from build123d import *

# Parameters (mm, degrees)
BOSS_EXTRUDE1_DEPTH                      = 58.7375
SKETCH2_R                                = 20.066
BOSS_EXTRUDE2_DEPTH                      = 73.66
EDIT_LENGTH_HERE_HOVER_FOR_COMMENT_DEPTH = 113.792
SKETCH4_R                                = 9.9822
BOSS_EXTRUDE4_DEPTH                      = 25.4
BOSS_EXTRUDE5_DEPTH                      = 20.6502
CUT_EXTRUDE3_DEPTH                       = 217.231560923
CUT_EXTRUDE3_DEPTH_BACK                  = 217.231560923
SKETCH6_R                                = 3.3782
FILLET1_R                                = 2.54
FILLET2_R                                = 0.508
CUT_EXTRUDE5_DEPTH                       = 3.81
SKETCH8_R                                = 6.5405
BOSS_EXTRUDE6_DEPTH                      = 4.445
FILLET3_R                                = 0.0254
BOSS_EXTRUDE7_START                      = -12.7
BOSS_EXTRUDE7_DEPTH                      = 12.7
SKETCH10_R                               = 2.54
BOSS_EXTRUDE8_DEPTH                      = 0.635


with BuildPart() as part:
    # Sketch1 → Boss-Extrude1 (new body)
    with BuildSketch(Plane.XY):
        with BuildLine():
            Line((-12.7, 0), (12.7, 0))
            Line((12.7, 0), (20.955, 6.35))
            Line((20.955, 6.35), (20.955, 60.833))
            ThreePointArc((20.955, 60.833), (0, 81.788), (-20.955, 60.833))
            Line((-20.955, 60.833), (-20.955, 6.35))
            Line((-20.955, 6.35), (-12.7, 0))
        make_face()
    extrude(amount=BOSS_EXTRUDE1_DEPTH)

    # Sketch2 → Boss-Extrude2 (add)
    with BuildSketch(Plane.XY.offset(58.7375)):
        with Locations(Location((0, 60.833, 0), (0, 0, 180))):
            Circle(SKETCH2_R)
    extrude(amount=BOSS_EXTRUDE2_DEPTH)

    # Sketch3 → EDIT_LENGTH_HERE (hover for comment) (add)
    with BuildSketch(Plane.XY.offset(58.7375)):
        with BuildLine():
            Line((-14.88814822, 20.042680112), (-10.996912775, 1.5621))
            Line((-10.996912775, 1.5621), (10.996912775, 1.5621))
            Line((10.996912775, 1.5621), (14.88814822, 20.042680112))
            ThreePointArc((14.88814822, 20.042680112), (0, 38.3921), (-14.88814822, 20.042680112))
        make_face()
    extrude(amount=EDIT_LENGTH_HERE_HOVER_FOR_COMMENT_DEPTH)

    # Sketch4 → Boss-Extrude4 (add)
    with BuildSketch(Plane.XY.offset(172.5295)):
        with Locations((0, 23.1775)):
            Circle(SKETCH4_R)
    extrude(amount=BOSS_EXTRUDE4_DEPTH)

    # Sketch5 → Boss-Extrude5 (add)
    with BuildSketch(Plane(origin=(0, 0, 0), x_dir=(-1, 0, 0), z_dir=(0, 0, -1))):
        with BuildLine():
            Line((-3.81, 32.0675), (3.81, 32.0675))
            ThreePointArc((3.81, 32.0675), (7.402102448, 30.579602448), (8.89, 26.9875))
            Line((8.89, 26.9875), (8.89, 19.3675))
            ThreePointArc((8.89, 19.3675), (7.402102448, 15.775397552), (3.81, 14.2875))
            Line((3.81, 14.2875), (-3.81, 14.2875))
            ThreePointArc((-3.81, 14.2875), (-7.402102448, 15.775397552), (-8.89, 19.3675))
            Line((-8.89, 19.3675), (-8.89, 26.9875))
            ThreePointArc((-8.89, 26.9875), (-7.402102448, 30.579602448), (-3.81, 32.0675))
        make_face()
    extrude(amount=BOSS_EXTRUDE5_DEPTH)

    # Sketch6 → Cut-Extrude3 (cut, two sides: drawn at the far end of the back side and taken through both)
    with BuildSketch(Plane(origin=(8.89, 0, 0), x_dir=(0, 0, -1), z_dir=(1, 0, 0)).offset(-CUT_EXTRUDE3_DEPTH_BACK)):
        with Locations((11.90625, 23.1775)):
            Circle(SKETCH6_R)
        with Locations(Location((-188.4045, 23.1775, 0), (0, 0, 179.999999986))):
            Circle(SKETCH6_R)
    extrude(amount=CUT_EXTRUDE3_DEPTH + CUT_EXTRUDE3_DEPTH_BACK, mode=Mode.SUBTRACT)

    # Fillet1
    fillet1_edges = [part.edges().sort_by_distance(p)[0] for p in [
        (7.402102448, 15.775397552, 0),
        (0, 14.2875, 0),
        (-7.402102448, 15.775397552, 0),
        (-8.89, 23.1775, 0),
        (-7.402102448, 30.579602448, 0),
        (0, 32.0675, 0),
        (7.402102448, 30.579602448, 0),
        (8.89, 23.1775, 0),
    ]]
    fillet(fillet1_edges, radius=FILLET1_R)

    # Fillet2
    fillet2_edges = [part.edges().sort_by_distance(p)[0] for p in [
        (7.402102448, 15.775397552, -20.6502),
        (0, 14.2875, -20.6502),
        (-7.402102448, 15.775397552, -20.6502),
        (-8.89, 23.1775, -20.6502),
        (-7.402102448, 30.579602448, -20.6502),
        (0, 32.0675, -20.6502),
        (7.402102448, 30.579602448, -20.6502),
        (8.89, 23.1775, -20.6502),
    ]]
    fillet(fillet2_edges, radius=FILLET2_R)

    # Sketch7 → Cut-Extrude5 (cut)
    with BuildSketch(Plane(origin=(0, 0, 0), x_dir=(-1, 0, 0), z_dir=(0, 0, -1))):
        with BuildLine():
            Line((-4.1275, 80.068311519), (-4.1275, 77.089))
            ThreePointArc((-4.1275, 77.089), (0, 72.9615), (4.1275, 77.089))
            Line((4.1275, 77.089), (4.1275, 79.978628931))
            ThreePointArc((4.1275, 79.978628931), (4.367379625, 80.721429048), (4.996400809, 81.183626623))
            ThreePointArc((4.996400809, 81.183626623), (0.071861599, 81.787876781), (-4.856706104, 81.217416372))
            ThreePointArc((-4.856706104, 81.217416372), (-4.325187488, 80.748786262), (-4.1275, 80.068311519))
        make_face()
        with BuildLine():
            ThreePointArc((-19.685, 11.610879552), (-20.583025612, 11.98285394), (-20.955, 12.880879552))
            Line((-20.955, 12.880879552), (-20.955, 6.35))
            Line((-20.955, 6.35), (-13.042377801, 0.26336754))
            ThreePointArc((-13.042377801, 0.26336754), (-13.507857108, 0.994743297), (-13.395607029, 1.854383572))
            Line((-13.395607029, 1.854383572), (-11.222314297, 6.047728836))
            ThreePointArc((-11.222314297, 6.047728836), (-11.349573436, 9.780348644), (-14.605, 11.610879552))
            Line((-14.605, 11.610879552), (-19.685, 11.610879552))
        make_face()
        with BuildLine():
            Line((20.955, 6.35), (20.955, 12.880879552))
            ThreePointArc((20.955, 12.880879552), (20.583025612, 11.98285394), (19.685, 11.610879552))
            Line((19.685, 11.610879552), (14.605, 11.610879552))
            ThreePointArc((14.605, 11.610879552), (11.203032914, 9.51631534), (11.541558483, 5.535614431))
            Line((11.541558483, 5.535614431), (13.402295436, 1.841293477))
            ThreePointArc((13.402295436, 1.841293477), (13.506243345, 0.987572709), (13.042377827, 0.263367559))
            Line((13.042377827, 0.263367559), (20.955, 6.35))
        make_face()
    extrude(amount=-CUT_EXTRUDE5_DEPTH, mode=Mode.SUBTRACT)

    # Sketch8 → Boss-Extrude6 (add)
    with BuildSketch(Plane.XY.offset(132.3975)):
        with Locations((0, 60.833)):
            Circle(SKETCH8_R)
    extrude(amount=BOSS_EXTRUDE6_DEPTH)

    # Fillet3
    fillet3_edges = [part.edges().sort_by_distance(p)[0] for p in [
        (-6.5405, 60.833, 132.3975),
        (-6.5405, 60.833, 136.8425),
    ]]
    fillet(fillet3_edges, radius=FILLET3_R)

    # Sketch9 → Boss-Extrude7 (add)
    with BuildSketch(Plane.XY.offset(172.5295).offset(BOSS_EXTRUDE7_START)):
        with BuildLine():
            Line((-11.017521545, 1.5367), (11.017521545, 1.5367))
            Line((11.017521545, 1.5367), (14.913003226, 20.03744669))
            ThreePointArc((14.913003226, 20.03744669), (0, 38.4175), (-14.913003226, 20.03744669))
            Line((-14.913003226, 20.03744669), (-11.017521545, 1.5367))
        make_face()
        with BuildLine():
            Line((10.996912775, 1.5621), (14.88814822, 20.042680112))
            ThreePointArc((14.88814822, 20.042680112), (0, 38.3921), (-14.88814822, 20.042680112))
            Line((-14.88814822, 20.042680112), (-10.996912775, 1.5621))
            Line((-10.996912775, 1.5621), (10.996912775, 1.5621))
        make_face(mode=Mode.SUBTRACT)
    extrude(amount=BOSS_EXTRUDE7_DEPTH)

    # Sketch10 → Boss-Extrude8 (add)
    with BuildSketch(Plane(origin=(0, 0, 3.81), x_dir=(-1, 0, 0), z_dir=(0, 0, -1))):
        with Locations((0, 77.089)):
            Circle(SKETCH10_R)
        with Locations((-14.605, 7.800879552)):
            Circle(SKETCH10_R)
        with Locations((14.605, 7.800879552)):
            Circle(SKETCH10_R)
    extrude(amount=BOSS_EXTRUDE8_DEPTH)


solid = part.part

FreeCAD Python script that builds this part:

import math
import FreeCAD as App
import Part
import Sketcher
Q = App.Units.Quantity


def edges_at(feature, points):
    """Names of the edges that pass closest to the given points."""
    edges = feature.Shape.Edges
    near = lambda p: min(range(len(edges)), key=lambda i: edges[i].distToShape(Part.Vertex(*p))[0])
    return sorted({f"Edge{near(p) + 1}" for p in points})

doc = App.newDocument("Part")
body = doc.addObject("PartDesign::Body", "Body")

# Sketch on XY plane
sketch1 = body.newObject("Sketcher::SketchObject", "Sketch")
sketch1.AttachmentSupport = (doc.getObject("XY_Plane"), [""])
sketch1.MapMode = "FlatFace"
sketch1.addGeometry([
    Part.LineSegment(App.Vector(-13, 0, 0), App.Vector(13, 0, 0)),  # 0
    Part.LineSegment(App.Vector(13, 0, 0), App.Vector(21, 6, 0)),  # 1
    Part.LineSegment(App.Vector(21, 6, 0), App.Vector(21, 61, 0)),  # 2
    Part.ArcOfCircle(Part.Circle(App.Vector(0, 61, 0), App.Vector(0, 0, 1), 21), math.radians(0), math.radians(180)),  # 3
    Part.LineSegment(App.Vector(-21, 61, 0), App.Vector(-21, 6, 0)),  # 4
    Part.LineSegment(App.Vector(-21, 6, 0), App.Vector(-13, 0, 0)),  # 5
], False)
sketch1.addConstraint([
    Sketcher.Constraint("Coincident", 0, 2, 1, 1),
    Sketcher.Constraint("Coincident", 1, 2, 2, 1),
    Sketcher.Constraint("Tangent", 2, 2, 3, 1),
    Sketcher.Constraint("Tangent", 3, 2, 4, 1),
    Sketcher.Constraint("Coincident", 4, 2, 5, 1),
    Sketcher.Constraint("Coincident", 5, 2, 0, 1),
    Sketcher.Constraint("Horizontal", 0),
    Sketcher.Constraint("Vertical", 2),
    Sketcher.Constraint("Vertical", 4),
    Sketcher.Constraint("Symmetric", 0, 2, 5, 2, -1, 1),
    Sketcher.Constraint("Symmetric", 1, 2, 4, 2, -2),
    Sketcher.Constraint("DistanceX", 0, 1, 0, 2, Q("1 in")),
    Sketcher.Constraint("Radius", 3, Q("0.825 in")),
    Sketcher.Constraint("DistanceY", 2, 1, 2, 2, Q("2.145 in")),
    Sketcher.Constraint("DistanceY", -1, 1, 1, 2, Q("0.25 in")),
])
pad1 = body.newObject("PartDesign::Pad", "Pad")
pad1.Profile = sketch1
pad1.Length = Q("2.3125 in")

# Sketch on XY plane
sketch2 = body.newObject("Sketcher::SketchObject", "Sketch001")
sketch2.AttachmentSupport = (doc.getObject("XY_Plane"), [""])
sketch2.MapMode = "FlatFace"
sketch2.AttachmentOffset = App.Placement(App.Vector(0, 0, 2.3125 * 25.4), App.Rotation())
sketch2.addGeometry(Part.Circle(App.Vector(0, 61, 0), App.Vector(0, 0, 1), 20), False)
sketch2.addConstraint([
    Sketcher.Constraint("PointOnObject", 0, 3, -2),
    Sketcher.Constraint("Diameter", 0, Q("1.58 in")),
    Sketcher.Constraint("DistanceY", -1, 1, 0, 3, Q("2.395 in")),
])
pad2 = body.newObject("PartDesign::Pad", "Pad001")
pad2.Profile = sketch2
pad2.Length = Q("2.9 in")

# Sketch on XY plane
sketch3 = body.newObject("Sketcher::SketchObject", "Sketch002")
sketch3.AttachmentSupport = (doc.getObject("XY_Plane"), [""])
sketch3.MapMode = "FlatFace"
sketch3.AttachmentOffset = App.Placement(App.Vector(0, 0, 2.3125 * 25.4), App.Rotation())
sketch3.addGeometry([
    Part.LineSegment(App.Vector(-15, 20, 0), App.Vector(-11, 2, 0)),
    Part.LineSegment(App.Vector(-11, 2, 0), App.Vector(11, 2, 0)),
    Part.LineSegment(App.Vector(11, 2, 0), App.Vector(15, 20, 0)),
    Part.ArcOfCircle(Part.Circle(App.Vector(0, 23, 0), App.Vector(0, 0, 1), 15), math.radians(-12), math.radians(192)),
], False)
sketch3.addConstraint([
    Sketcher.Constraint("Coincident", 0, 2, 1, 1),
    Sketcher.Constraint("Coincident", 1, 2, 2, 1),
    Sketcher.Constraint("Tangent", 2, 2, 3, 1),
    Sketcher.Constraint("Tangent", 3, 2, 0, 1),
    Sketcher.Constraint("Horizontal", 1),
    Sketcher.Constraint("Symmetric", 2, 2, 3, 2, -2),
    Sketcher.Constraint("Radius", 3, Q("0.599 in")),
    Sketcher.Constraint("DistanceY", 0, 2, 3, 3, Q("0.851 in")),
    Sketcher.Constraint("DistanceY", -1, 1, 3, 3, Q("0.9125 in")),
    Sketcher.Constraint("DistanceX", 1, 1, 1, 2, Q("21.993826 mm")),
])
pad3 = body.newObject("PartDesign::Pad", "Pad002")
pad3.Profile = sketch3
pad3.Length = Q("4.48 in")

# Sketch on XY plane
sketch4 = body.newObject("Sketcher::SketchObject", "Sketch003")
sketch4.AttachmentSupport = (doc.getObject("XY_Plane"), [""])
sketch4.MapMode = "FlatFace"
sketch4.AttachmentOffset = App.Placement(App.Vector(0, 0, 6.7925 * 25.4), App.Rotation())
sketch4.addGeometry(Part.Circle(App.Vector(0, 23, 0), App.Vector(0, 0, 1), 10), False)
sketch4.addConstraint([
    Sketcher.Constraint("PointOnObject", 0, 3, -2),
    Sketcher.Constraint("Diameter", 0, Q("0.786 in")),
    Sketcher.Constraint("DistanceY", -1, 1, 0, 3, Q("0.9125 in")),
])
pad4 = body.newObject("PartDesign::Pad", "Pad003")
pad4.Profile = sketch4
pad4.Length = Q("1 in")

# Sketch on XY plane
sketch5 = body.newObject("Sketcher::SketchObject", "Sketch004")
sketch5.AttachmentSupport = (doc.getObject("XY_Plane"), [""])
sketch5.MapMode = "FlatFace"
sketch5.addGeometry([
    Part.LineSegment(App.Vector(-4, 32, 0), App.Vector(4, 32, 0)),  # 0
    Part.ArcOfCircle(Part.Circle(App.Vector(4, 27, 0), App.Vector(0, 0, 1), 5), math.radians(0), math.radians(90)),  # 1
    Part.LineSegment(App.Vector(9, 27, 0), App.Vector(9, 19, 0)),  # 2
    Part.ArcOfCircle(Part.Circle(App.Vector(4, 19, 0), App.Vector(0, 0, 1), 5), math.radians(-90), math.radians(0)),  # 3
    Part.LineSegment(App.Vector(4, 14, 0), App.Vector(-4, 14, 0)),  # 4
    Part.ArcOfCircle(Part.Circle(App.Vector(-4, 19, 0), App.Vector(0, 0, 1), 5), math.radians(-180), math.radians(-90)),  # 5
    Part.LineSegment(App.Vector(-9, 19, 0), App.Vector(-9, 27, 0)),  # 6
    Part.ArcOfCircle(Part.Circle(App.Vector(-4, 27, 0), App.Vector(0, 0, 1), 5), math.radians(90), math.radians(180)),  # 7
], False)
sketch5.addConstraint([
    Sketcher.Constraint("Tangent", 0, 2, 1, 2),
    Sketcher.Constraint("Tangent", 1, 1, 2, 1),
    Sketcher.Constraint("Tangent", 2, 2, 3, 2),
    Sketcher.Constraint("Tangent", 3, 1, 4, 1),
    Sketcher.Constraint("Tangent", 4, 2, 5, 2),
    Sketcher.Constraint("Tangent", 5, 1, 6, 1),
    Sketcher.Constraint("Tangent", 6, 2, 7, 2),
    Sketcher.Constraint("Tangent", 7, 1, 0, 1),
    Sketcher.Constraint("Horizontal", 0),
    Sketcher.Constraint("Vertical", 2),
    Sketcher.Constraint("Horizontal", 4),
    Sketcher.Constraint("Vertical", 6),
    Sketcher.Constraint("Equal", 1, 3),
    Sketcher.Constraint("Equal", 3, 5),
    Sketcher.Constraint("Equal", 5, 7),
    Sketcher.Constraint("Equal", 4, 2),
    Sketcher.Constraint("Radius", 1, Q("0.2 in")),
    Sketcher.Constraint("DistanceX", 0, 1, 0, 2, Q("0.3 in")),
    Sketcher.Constraint("DistanceX", -1, 1, 1, 3, Q("0.15 in")),
    Sketcher.Constraint("DistanceY", -1, 1, 1, 3, Q("1.0625 in")),
])
pad5 = body.newObject("PartDesign::Pad", "Pad004")
pad5.Profile = sketch5
pad5.Length = Q("0.813 in")
pad5.Reversed = True

# Sketch on YZ plane
sketch6 = body.newObject("Sketcher::SketchObject", "Sketch005")
sketch6.AttachmentSupport = (doc.getObject("YZ_Plane"), [""])
sketch6.MapMode = "FlatFace"
sketch6.AttachmentOffset = App.Placement(App.Vector(0, 0, 0.35 * 25.4), App.Rotation())
sketch6.addGeometry([
    Part.Circle(App.Vector(23.2, -11.9, 0), App.Vector(0, 0, 1), 3.4),
    Part.Circle(App.Vector(23.2, 188.4, 0), App.Vector(0, 0, 1), 3.4),
], False)
sketch6.addConstraint([
    Sketcher.Constraint("Equal", 0, 1),
    Sketcher.Constraint("Vertical", 0, 3, 1, 3),
    Sketcher.Constraint("Diameter", 0, Q("0.266 in")),
    Sketcher.Constraint("DistanceY", 0, 3, -1, 1, Q("0.46875 in")),
    Sketcher.Constraint("DistanceX", -1, 1, 0, 3, Q("0.9125 in")),
    Sketcher.Constraint("DistanceY", -1, 1, 1, 3, Q("7.4175 in")),
])
pocket1 = body.newObject("PartDesign::Pocket", "Pocket")
pocket1.Profile = sketch6
pocket1.Type = "ThroughAll"
pocket1.Midplane = True
doc.recompute()

fillet = body.newObject("PartDesign::Fillet", "Fillet")
fillet.Base = (pocket1, edges_at(pocket1, [
    (7.402, 15.775, 0),
    (0, 14.287, 0),
    (-7.402, 15.775, 0),
    (-8.89, 23.177, 0),
    (-7.402, 30.58, 0),
    (0, 32.068, 0),
    (7.402, 30.58, 0),
    (8.89, 23.177, 0),
]))
fillet.Radius = Q("0.1 in")
doc.recompute()

fillet2 = body.newObject("PartDesign::Fillet", "Fillet001")
fillet2.Base = (fillet, edges_at(fillet, [
    (7.402, 15.775, -20.65),
    (0, 14.287, -20.65),
    (-7.402, 15.775, -20.65),
    (-8.89, 23.177, -20.65),
    (-7.402, 30.58, -20.65),
    (0, 32.068, -20.65),
    (7.402, 30.58, -20.65),
    (8.89, 23.177, -20.65),
]))
fillet2.Radius = Q("0.02 in")

# Sketch on XY plane
sketch7 = body.newObject("Sketcher::SketchObject", "Sketch006")
sketch7.AttachmentSupport = (doc.getObject("XY_Plane"), [""])
sketch7.MapMode = "FlatFace"
sketch7.addGeometry([
    Part.LineSegment(App.Vector(4.1, 80.1, 0), App.Vector(4.1, 77.1, 0)),  # 0
    Part.ArcOfCircle(Part.Circle(App.Vector(0, 77.1, 0), App.Vector(0, 0, 1), 4.1), math.radians(180), math.radians(360)),  # 1
    Part.LineSegment(App.Vector(-4.1, 77.1, 0), App.Vector(-4.1, 80, 0)),  # 2
    Part.ArcOfCircle(Part.Circle(App.Vector(-5.4, 80, 0), App.Vector(0, 0, 1), 1.3), math.radians(0), math.radians(72)),  # 3
    Part.ArcOfCircle(Part.Circle(App.Vector(0, 60.8, 0), App.Vector(0, 0, 1), 21), math.radians(77), math.radians(104)),  # 4
    Part.ArcOfCircle(Part.Circle(App.Vector(5.4, 80.1, 0), App.Vector(0, 0, 1), 1.3), math.radians(115), math.radians(180)),  # 5
    Part.ArcOfCircle(Part.Circle(App.Vector(19.7, 12.9, 0), App.Vector(0, 0, 1), 1.3), math.radians(-90), math.radians(0)),  # 6
    Part.LineSegment(App.Vector(21, 12.9, 0), App.Vector(21, 6.3, 0)),  # 7
    Part.LineSegment(App.Vector(21, 6.3, 0), App.Vector(13, 0.3, 0)),  # 8
    Part.ArcOfCircle(Part.Circle(App.Vector(12.3, 1.3, 0), App.Vector(0, 0, 1), 1.3), math.radians(-52), math.radians(27)),  # 9
    Part.LineSegment(App.Vector(13.4, 1.9, 0), App.Vector(11.2, 6, 0)),  # 10
    Part.ArcOfCircle(Part.Circle(App.Vector(14.6, 7.8, 0), App.Vector(0, 0, 1), 3.8), math.radians(90), math.radians(207)),  # 11
    Part.LineSegment(App.Vector(14.6, 11.6, 0), App.Vector(19.7, 11.6, 0)),  # 12
    Part.LineSegment(App.Vector(-21, 6.3, 0), App.Vector(-21, 12.9, 0)),  # 13
    Part.ArcOfCircle(Part.Circle(App.Vector(-19.7, 12.9, 0), App.Vector(0, 0, 1), 1.3), math.radians(180), math.radians(270)),  # 14
    Part.LineSegment(App.Vector(-19.7, 11.6, 0), App.Vector(-14.6, 11.6, 0)),  # 15
    Part.ArcOfCircle(Part.Circle(App.Vector(-14.6, 7.8, 0), App.Vector(0, 0, 1), 3.8), math.radians(-36), math.radians(90)),  # 16
    Part.LineSegment(App.Vector(-11.5, 5.5, 0), App.Vector(-13.4, 1.8, 0)),  # 17
    Part.ArcOfCircle(Part.Circle(App.Vector(-12.3, 1.3, 0), App.Vector(0, 0, 1), 1.3), math.radians(153), math.radians(232)),  # 18
    Part.LineSegment(App.Vector(-13, 0.3, 0), App.Vector(-21, 6.3, 0)),  # 19
], False)
sketch7.addConstraint([
    Sketcher.Constraint("Tangent", 0, 2, 1, 2),
    Sketcher.Constraint("Tangent", 1, 1, 2, 1),
    Sketcher.Constraint("Tangent", 2, 2, 3, 1),
    Sketcher.Constraint("Coincident", 3, 2, 4, 2),
    Sketcher.Constraint("Coincident", 4, 1, 5, 1),
    Sketcher.Constraint("Tangent", 5, 2, 0, 1),
    Sketcher.Constraint("Tangent", 6, 2, 7, 1),
    Sketcher.Constraint("Coincident", 7, 2, 8, 1),
    Sketcher.Constraint("Tangent", 8, 2, 9, 1),
    Sketcher.Constraint("Tangent", 9, 2, 10, 1),
    Sketcher.Constraint("Tangent", 10, 2, 11, 2),
    Sketcher.Constraint("Tangent", 11, 1, 12, 1),
    Sketcher.Constraint("Tangent", 12, 2, 6, 1),
    Sketcher.Constraint("Tangent", 13, 2, 14, 1),
    Sketcher.Constraint("Tangent", 14, 2, 15, 1),
    Sketcher.Constraint("Tangent", 15, 2, 16, 2),
    Sketcher.Constraint("Coincident", 16, 1, 17, 1),
    Sketcher.Constraint("Tangent", 17, 2, 18, 1),
    Sketcher.Constraint("Tangent", 18, 2, 19, 1),
    Sketcher.Constraint("Coincident", 19, 2, 13, 1),
    Sketcher.Constraint("Vertical", 0),
    Sketcher.Constraint("Vertical", 2),
    Sketcher.Constraint("Vertical", 7),
    Sketcher.Constraint("Horizontal", 12),
    Sketcher.Constraint("Vertical", 13),
    Sketcher.Constraint("Horizontal", 15),
    Sketcher.Constraint("Equal", 3, 5),
    Sketcher.Constraint("Equal", 5, 6),
    Sketcher.Constraint("Equal", 6, 9),
    Sketcher.Constraint("Equal", 9, 14),
    Sketcher.Constraint("Equal", 11, 16),
    Sketcher.Constraint("Equal", 14, 18),
    Sketcher.Constraint("Symmetric", 6, 3, 14, 3, -2),
    Sketcher.Constraint("Symmetric", 9, 3, 18, 3, -2),
    Sketcher.Constraint("PointOnObject", 1, 3, -2),
    Sketcher.Constraint("PointOnObject", 4, 3, -2),
    Sketcher.Constraint("Horizontal", 8, 2, 18, 2),
    Sketcher.Constraint("Equal", 12, 15),
    Sketcher.Constraint("Radius", 3, Q("0.05 in")),
    Sketcher.Constraint("Radius", 11, Q("0.15 in")),
    Sketcher.Constraint("DistanceX", 12, 1, 12, 2, Q("0.2 in")),
    Sketcher.Constraint("Radius", 4, Q("0.825 in")),
    Sketcher.Constraint("Radius", 1, Q("0.1625 in")),
    Sketcher.Constraint("DistanceX", 16, 3, 6, 2, Q("1.4 in")),
    Sketcher.Constraint("DistanceY", 9, 3, 7, 2, Q("0.2 in")),
    Sketcher.Constraint("DistanceY", -1, 1, 9, 3, Q("0.05 in")),
    Sketcher.Constraint("DistanceY", 4, 3, 1, 3, Q("0.64 in")),
    Sketcher.Constraint("DistanceY", -1, 1, 1, 3, Q("3.035 in")),
    Sketcher.Constraint("DistanceY", 0, 2, 0, 1, Q("2.979312 mm")),
    Sketcher.Constraint("DistanceY", 2, 1, 2, 2, Q("2.889629 mm")),
    Sketcher.Constraint("DistanceY", 7, 2, 7, 1, Q("6.53088 mm")),
    Sketcher.Constraint("Distance", 8, Q("9.982819 mm")),
    Sketcher.Constraint("DistanceX", 16, 1, -1, 1, Q("11.541558 mm")),
])
pocket2 = body.newObject("PartDesign::Pocket", "Pocket001")
pocket2.Profile = sketch7
pocket2.Length = Q("0.15 in")
pocket2.Reversed = True

# Sketch on XY plane
sketch8 = body.newObject("Sketcher::SketchObject", "Sketch007")
sketch8.AttachmentSupport = (doc.getObject("XY_Plane"), [""])
sketch8.MapMode = "FlatFace"
sketch8.AttachmentOffset = App.Placement(App.Vector(0, 0, 5.2125 * 25.4), App.Rotation())
sketch8.addGeometry(Part.Circle(App.Vector(0, 61, 0), App.Vector(0, 0, 1), 7), False)
sketch8.addConstraint([
    Sketcher.Constraint("PointOnObject", 0, 3, -2),
    Sketcher.Constraint("Diameter", 0, Q("0.515 in")),
    Sketcher.Constraint("DistanceY", -1, 1, 0, 3, Q("2.395 in")),
])
pad6 = body.newObject("PartDesign::Pad", "Pad005")
pad6.Profile = sketch8
pad6.Length = Q("0.175 in")
doc.recompute()

fillet3 = body.newObject("PartDesign::Fillet", "Fillet002")
fillet3.Base = (pad6, edges_at(pad6, [(-6.54, 60.833, 132.398), (-6.54, 60.833, 136.843)]))
fillet3.Radius = Q("0.001 in")

# Sketch on XY plane
sketch9 = body.newObject("Sketcher::SketchObject", "Sketch008")
sketch9.AttachmentSupport = (doc.getObject("XY_Plane"), [""])
sketch9.MapMode = "FlatFace"
sketch9.AttachmentOffset = App.Placement(App.Vector(0, 0, 6.2925 * 25.4), App.Rotation())
sketch9.addGeometry([
    Part.LineSegment(App.Vector(-11, 2, 0), App.Vector(11, 2, 0)),  # 0
    Part.LineSegment(App.Vector(11, 2, 0), App.Vector(15, 20, 0)),  # 1
    Part.ArcOfCircle(Part.Circle(App.Vector(0, 23, 0), App.Vector(0, 0, 1), 15), math.radians(-12), math.radians(192)),  # 2
    Part.LineSegment(App.Vector(-15, 20, 0), App.Vector(-11, 2, 0)),  # 3
    Part.LineSegment(App.Vector(15, 20, 0), App.Vector(11, 2, 0)),  # 4
    Part.LineSegment(App.Vector(11, 2, 0), App.Vector(-11, 2, 0)),  # 5
    Part.LineSegment(App.Vector(-11, 2, 0), App.Vector(-15, 20, 0)),  # 6
    Part.ArcOfCircle(Part.Circle(App.Vector(0, 23, 0), App.Vector(0, 0, 1), 15), math.radians(-12), math.radians(192)),  # 7
], False)
sketch9.addConstraint([
    Sketcher.Constraint("Coincident", 0, 2, 1, 1),
    Sketcher.Constraint("Tangent", 1, 2, 2, 1),
    Sketcher.Constraint("Tangent", 2, 2, 3, 1),
    Sketcher.Constraint("Coincident", 3, 2, 0, 1),
    Sketcher.Constraint("Coincident", 4, 2, 5, 1),
    Sketcher.Constraint("Coincident", 5, 2, 6, 1),
    Sketcher.Constraint("Tangent", 6, 2, 7, 2),
    Sketcher.Constraint("Tangent", 7, 1, 4, 1),
    Sketcher.Constraint("Horizontal", 0),
    Sketcher.Constraint("Horizontal", 5),
    Sketcher.Constraint("Coincident", 7, 3, 2, 3),
    Sketcher.Constraint("Symmetric", 1, 2, 2, 2, -2),
    Sketcher.Constraint("Parallel", 1, 4),
    Sketcher.Constraint("Parallel", 3, 6),
    Sketcher.Constraint("Radius", 2, Q("0.6 in")),
    Sketcher.Constraint("Radius", 7, Q("0.599 in")),
    Sketcher.Constraint("DistanceY", 0, 2, 2, 3, Q("0.852 in")),
    Sketcher.Constraint("DistanceY", 0, 2, 4, 2, Q("0.001 in")),
    Sketcher.Constraint("DistanceY", -1, 1, 2, 3, Q("0.9125 in")),
    Sketcher.Constraint("Distance", 1, Q("18.906412 mm")),
])
pad7 = body.newObject("PartDesign::Pad", "Pad006")
pad7.Profile = sketch9
pad7.Length = Q("0.5 in")

# Sketch on XY plane
sketch10 = body.newObject("Sketcher::SketchObject", "Sketch009")
sketch10.AttachmentSupport = (doc.getObject("XY_Plane"), [""])
sketch10.MapMode = "FlatFace"
sketch10.AttachmentOffset = App.Placement(App.Vector(0, 0, 0.15 * 25.4), App.Rotation())
sketch10.addGeometry([
    Part.Circle(App.Vector(0, 77.1, 0), App.Vector(0, 0, 1), 2.5),
    Part.Circle(App.Vector(14.6, 7.8, 0), App.Vector(0, 0, 1), 2.5),
    Part.Circle(App.Vector(-14.6, 7.8, 0), App.Vector(0, 0, 1), 2.5),
], False)
sketch10.addConstraint([
    Sketcher.Constraint("Equal", 0, 1),
    Sketcher.Constraint("Equal", 1, 2),
    Sketcher.Constraint("Symmetric", 1, 3, 2, 3, -2),
    Sketcher.Constraint("PointOnObject", 0, 3, -2),
    Sketcher.Constraint("Diameter", 0, Q("0.2 in")),
    Sketcher.Constraint("DistanceX", 2, 3, 1, 3, Q("1.15 in")),
    Sketcher.Constraint("DistanceY", -1, 1, 0, 3, Q("3.035 in")),
    Sketcher.Constraint("DistanceY", -1, 1, 1, 3, Q("7.80088 mm")),
])
pad8 = body.newObject("PartDesign::Pad", "Pad007")
pad8.Profile = sketch10
pad8.Length = Q("0.025 in")
pad8.Reversed = True

doc.recompute()
